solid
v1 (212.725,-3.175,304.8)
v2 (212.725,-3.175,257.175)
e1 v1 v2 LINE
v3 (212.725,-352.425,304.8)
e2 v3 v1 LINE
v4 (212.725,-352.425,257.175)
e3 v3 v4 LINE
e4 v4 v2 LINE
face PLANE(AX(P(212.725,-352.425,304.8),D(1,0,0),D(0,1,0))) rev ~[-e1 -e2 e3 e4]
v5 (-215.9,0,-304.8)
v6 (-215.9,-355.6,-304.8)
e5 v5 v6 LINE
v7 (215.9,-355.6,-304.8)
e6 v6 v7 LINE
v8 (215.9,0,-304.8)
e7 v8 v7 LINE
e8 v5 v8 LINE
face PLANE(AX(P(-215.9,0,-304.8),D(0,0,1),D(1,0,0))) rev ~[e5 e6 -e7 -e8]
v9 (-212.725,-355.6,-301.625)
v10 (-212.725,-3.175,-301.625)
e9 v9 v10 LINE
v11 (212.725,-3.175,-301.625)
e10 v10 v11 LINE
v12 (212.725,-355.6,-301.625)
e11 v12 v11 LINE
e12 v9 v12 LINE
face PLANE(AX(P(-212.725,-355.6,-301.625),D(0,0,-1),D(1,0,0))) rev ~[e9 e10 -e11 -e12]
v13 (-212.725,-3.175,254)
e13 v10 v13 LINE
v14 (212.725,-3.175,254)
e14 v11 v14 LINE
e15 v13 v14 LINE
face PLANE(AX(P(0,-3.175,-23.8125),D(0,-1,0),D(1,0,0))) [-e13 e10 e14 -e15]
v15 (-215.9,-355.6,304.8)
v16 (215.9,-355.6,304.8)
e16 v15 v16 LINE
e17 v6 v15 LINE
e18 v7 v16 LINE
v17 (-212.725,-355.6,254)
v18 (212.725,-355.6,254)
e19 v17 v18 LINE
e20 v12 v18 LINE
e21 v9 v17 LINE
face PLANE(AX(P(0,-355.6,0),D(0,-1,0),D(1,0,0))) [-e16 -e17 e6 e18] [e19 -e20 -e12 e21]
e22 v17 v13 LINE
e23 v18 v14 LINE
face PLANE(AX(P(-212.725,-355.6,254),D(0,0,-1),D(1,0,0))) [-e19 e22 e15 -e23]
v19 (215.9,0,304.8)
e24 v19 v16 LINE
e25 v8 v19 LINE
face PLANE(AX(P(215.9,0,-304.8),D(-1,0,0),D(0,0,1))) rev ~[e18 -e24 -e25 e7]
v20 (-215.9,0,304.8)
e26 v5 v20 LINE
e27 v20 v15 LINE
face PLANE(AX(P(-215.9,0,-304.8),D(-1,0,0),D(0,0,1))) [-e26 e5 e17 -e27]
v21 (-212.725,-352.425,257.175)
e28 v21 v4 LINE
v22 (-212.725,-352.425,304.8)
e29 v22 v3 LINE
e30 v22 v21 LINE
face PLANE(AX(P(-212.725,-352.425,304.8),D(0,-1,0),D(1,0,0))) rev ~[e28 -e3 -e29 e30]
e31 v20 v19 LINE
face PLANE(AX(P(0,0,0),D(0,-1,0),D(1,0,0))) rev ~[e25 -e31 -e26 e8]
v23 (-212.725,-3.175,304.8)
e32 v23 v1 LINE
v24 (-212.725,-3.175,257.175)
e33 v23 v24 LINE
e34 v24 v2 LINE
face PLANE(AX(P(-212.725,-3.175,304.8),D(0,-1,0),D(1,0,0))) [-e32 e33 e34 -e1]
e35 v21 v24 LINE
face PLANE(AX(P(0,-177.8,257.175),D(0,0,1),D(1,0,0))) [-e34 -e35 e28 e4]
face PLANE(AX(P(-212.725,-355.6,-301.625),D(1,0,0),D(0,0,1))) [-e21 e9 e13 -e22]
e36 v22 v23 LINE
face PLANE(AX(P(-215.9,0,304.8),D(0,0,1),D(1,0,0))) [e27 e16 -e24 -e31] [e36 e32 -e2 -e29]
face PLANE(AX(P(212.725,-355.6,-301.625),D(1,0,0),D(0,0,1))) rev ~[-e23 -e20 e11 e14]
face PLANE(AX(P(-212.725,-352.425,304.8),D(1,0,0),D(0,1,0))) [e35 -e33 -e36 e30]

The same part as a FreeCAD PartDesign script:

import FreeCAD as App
import Part
import Sketcher
from FreeCAD import Vector
Q = App.Units.Quantity


def add_polygon(sketch, points):
    """Adds a closed chain of lines whose ends are joined by coincident constraints."""
    first, n = sketch.GeometryCount, len(points)
    for a, b in zip(points, points[1:] + points[:1]):
        sketch.addGeometry(Part.LineSegment(App.Vector(*a, 0), App.Vector(*b, 0)), False)
    for i in range(n):
        sketch.addConstraint(Sketcher.Constraint("Coincident", first + i, 2, first + (i + 1) % n, 1))

doc = App.newDocument("Part")
body = doc.addObject("PartDesign::Body", "Body")

sketch1 = body.newObject("Sketcher::SketchObject", "Sketch")
sketch1.AttachmentSupport = (doc.getObject("XZ_Plane"), [""])
sketch1.MapMode = "FlatFace"
add_polygon(sketch1, [(-216, 305), (-216, -305), (216, -305), (216, 305)])
sketch1.addConstraint(Sketcher.Constraint("Vertical", 0))
sketch1.addConstraint(Sketcher.Constraint("Horizontal", 1))
sketch1.addConstraint(Sketcher.Constraint("Vertical", 2))
sketch1.addConstraint(Sketcher.Constraint("Horizontal", 3))
sketch1.addConstraint(Sketcher.Constraint("Symmetric", 0, 2, 2, 2, -1, 1))
sketch1.addConstraint(Sketcher.Constraint("DistanceX", 1, 1, 1, 2, Q("17 in")))
sketch1.addConstraint(Sketcher.Constraint("DistanceY", 0, 2, 0, 1, Q("24 in")))
pad1 = body.newObject("PartDesign::Pad", "Pad")
pad1.Profile = sketch1
pad1.Length = Q("14 in")

sketch2 = body.newObject("Sketcher::SketchObject", "Sketch001")
sketch2.AttachmentSupport = (doc.getObject("XZ_Plane"), [""])
sketch2.MapMode = "FlatFace"
sketch2.AttachmentOffset = App.Placement(Vector(0, 0, 14 * 25.4), App.Rotation())
add_polygon(sketch2, [(-213, 254), (-213, -302), (213, -302), (213, 254)])
sketch2.addConstraint(Sketcher.Constraint("Vertical", 0))
sketch2.addConstraint(Sketcher.Constraint("Horizontal", 1))
sketch2.addConstraint(Sketcher.Constraint("Vertical", 2))
sketch2.addConstraint(Sketcher.Constraint("Horizontal", 3))
sketch2.addConstraint(Sketcher.Constraint("DistanceY", -1, 1, 2, 2, Q("10 in")))
sketch2.addConstraint(Sketcher.Constraint("DistanceX", 1, 1, 1, 2, Q("16.75 in")))
sketch2.addConstraint(Sketcher.Constraint("DistanceY", 0, 2, 0, 1, Q("21.875 in")))
sketch2.addConstraint(Sketcher.Constraint("DistanceX", 0, 2, -1, 1, Q("8.375 in")))
pocket1 = body.newObject("PartDesign::Pocket", "Pocket")
pocket1.Profile = sketch2
pocket1.Length = Q("13.875 in")

sketch3 = body.newObject("Sketcher::SketchObject", "Sketch002")
sketch3.AttachmentSupport = (doc.getObject("XY_Plane"), [""])
sketch3.MapMode = "FlatFace"
sketch3.AttachmentOffset = App.Placement(Vector(0, 0, 12 * 25.4), App.Rotation())
add_polygon(sketch3, [(-213, -3), (-213, -352), (213, -352), (213, -3)])
sketch3.addConstraint(Sketcher.Constraint("Vertical", 0))
sketch3.addConstraint(Sketcher.Constraint("Horizontal", 1))
sketch3.addConstraint(Sketcher.Constraint("Vertical", 2))
sketch3.addConstraint(Sketcher.Constraint("Horizontal", 3))
sketch3.addConstraint(Sketcher.Constraint("DistanceX", 1, 1, 1, 2, Q("16.75 in")))
sketch3.addConstraint(Sketcher.Constraint("DistanceY", 0, 2, 0, 1, Q("13.75 in")))
sketch3.addConstraint(Sketcher.Constraint("DistanceX", 0, 2, -1, 1, Q("8.375 in")))
sketch3.addConstraint(Sketcher.Constraint("DistanceY", 0, 2, -1, 1, Q("13.875 in")))
pocket2 = body.newObject("PartDesign::Pocket", "Pocket001")
pocket2.Profile = sketch3
pocket2.Length = Q("1.875 in")

doc.recompute()
